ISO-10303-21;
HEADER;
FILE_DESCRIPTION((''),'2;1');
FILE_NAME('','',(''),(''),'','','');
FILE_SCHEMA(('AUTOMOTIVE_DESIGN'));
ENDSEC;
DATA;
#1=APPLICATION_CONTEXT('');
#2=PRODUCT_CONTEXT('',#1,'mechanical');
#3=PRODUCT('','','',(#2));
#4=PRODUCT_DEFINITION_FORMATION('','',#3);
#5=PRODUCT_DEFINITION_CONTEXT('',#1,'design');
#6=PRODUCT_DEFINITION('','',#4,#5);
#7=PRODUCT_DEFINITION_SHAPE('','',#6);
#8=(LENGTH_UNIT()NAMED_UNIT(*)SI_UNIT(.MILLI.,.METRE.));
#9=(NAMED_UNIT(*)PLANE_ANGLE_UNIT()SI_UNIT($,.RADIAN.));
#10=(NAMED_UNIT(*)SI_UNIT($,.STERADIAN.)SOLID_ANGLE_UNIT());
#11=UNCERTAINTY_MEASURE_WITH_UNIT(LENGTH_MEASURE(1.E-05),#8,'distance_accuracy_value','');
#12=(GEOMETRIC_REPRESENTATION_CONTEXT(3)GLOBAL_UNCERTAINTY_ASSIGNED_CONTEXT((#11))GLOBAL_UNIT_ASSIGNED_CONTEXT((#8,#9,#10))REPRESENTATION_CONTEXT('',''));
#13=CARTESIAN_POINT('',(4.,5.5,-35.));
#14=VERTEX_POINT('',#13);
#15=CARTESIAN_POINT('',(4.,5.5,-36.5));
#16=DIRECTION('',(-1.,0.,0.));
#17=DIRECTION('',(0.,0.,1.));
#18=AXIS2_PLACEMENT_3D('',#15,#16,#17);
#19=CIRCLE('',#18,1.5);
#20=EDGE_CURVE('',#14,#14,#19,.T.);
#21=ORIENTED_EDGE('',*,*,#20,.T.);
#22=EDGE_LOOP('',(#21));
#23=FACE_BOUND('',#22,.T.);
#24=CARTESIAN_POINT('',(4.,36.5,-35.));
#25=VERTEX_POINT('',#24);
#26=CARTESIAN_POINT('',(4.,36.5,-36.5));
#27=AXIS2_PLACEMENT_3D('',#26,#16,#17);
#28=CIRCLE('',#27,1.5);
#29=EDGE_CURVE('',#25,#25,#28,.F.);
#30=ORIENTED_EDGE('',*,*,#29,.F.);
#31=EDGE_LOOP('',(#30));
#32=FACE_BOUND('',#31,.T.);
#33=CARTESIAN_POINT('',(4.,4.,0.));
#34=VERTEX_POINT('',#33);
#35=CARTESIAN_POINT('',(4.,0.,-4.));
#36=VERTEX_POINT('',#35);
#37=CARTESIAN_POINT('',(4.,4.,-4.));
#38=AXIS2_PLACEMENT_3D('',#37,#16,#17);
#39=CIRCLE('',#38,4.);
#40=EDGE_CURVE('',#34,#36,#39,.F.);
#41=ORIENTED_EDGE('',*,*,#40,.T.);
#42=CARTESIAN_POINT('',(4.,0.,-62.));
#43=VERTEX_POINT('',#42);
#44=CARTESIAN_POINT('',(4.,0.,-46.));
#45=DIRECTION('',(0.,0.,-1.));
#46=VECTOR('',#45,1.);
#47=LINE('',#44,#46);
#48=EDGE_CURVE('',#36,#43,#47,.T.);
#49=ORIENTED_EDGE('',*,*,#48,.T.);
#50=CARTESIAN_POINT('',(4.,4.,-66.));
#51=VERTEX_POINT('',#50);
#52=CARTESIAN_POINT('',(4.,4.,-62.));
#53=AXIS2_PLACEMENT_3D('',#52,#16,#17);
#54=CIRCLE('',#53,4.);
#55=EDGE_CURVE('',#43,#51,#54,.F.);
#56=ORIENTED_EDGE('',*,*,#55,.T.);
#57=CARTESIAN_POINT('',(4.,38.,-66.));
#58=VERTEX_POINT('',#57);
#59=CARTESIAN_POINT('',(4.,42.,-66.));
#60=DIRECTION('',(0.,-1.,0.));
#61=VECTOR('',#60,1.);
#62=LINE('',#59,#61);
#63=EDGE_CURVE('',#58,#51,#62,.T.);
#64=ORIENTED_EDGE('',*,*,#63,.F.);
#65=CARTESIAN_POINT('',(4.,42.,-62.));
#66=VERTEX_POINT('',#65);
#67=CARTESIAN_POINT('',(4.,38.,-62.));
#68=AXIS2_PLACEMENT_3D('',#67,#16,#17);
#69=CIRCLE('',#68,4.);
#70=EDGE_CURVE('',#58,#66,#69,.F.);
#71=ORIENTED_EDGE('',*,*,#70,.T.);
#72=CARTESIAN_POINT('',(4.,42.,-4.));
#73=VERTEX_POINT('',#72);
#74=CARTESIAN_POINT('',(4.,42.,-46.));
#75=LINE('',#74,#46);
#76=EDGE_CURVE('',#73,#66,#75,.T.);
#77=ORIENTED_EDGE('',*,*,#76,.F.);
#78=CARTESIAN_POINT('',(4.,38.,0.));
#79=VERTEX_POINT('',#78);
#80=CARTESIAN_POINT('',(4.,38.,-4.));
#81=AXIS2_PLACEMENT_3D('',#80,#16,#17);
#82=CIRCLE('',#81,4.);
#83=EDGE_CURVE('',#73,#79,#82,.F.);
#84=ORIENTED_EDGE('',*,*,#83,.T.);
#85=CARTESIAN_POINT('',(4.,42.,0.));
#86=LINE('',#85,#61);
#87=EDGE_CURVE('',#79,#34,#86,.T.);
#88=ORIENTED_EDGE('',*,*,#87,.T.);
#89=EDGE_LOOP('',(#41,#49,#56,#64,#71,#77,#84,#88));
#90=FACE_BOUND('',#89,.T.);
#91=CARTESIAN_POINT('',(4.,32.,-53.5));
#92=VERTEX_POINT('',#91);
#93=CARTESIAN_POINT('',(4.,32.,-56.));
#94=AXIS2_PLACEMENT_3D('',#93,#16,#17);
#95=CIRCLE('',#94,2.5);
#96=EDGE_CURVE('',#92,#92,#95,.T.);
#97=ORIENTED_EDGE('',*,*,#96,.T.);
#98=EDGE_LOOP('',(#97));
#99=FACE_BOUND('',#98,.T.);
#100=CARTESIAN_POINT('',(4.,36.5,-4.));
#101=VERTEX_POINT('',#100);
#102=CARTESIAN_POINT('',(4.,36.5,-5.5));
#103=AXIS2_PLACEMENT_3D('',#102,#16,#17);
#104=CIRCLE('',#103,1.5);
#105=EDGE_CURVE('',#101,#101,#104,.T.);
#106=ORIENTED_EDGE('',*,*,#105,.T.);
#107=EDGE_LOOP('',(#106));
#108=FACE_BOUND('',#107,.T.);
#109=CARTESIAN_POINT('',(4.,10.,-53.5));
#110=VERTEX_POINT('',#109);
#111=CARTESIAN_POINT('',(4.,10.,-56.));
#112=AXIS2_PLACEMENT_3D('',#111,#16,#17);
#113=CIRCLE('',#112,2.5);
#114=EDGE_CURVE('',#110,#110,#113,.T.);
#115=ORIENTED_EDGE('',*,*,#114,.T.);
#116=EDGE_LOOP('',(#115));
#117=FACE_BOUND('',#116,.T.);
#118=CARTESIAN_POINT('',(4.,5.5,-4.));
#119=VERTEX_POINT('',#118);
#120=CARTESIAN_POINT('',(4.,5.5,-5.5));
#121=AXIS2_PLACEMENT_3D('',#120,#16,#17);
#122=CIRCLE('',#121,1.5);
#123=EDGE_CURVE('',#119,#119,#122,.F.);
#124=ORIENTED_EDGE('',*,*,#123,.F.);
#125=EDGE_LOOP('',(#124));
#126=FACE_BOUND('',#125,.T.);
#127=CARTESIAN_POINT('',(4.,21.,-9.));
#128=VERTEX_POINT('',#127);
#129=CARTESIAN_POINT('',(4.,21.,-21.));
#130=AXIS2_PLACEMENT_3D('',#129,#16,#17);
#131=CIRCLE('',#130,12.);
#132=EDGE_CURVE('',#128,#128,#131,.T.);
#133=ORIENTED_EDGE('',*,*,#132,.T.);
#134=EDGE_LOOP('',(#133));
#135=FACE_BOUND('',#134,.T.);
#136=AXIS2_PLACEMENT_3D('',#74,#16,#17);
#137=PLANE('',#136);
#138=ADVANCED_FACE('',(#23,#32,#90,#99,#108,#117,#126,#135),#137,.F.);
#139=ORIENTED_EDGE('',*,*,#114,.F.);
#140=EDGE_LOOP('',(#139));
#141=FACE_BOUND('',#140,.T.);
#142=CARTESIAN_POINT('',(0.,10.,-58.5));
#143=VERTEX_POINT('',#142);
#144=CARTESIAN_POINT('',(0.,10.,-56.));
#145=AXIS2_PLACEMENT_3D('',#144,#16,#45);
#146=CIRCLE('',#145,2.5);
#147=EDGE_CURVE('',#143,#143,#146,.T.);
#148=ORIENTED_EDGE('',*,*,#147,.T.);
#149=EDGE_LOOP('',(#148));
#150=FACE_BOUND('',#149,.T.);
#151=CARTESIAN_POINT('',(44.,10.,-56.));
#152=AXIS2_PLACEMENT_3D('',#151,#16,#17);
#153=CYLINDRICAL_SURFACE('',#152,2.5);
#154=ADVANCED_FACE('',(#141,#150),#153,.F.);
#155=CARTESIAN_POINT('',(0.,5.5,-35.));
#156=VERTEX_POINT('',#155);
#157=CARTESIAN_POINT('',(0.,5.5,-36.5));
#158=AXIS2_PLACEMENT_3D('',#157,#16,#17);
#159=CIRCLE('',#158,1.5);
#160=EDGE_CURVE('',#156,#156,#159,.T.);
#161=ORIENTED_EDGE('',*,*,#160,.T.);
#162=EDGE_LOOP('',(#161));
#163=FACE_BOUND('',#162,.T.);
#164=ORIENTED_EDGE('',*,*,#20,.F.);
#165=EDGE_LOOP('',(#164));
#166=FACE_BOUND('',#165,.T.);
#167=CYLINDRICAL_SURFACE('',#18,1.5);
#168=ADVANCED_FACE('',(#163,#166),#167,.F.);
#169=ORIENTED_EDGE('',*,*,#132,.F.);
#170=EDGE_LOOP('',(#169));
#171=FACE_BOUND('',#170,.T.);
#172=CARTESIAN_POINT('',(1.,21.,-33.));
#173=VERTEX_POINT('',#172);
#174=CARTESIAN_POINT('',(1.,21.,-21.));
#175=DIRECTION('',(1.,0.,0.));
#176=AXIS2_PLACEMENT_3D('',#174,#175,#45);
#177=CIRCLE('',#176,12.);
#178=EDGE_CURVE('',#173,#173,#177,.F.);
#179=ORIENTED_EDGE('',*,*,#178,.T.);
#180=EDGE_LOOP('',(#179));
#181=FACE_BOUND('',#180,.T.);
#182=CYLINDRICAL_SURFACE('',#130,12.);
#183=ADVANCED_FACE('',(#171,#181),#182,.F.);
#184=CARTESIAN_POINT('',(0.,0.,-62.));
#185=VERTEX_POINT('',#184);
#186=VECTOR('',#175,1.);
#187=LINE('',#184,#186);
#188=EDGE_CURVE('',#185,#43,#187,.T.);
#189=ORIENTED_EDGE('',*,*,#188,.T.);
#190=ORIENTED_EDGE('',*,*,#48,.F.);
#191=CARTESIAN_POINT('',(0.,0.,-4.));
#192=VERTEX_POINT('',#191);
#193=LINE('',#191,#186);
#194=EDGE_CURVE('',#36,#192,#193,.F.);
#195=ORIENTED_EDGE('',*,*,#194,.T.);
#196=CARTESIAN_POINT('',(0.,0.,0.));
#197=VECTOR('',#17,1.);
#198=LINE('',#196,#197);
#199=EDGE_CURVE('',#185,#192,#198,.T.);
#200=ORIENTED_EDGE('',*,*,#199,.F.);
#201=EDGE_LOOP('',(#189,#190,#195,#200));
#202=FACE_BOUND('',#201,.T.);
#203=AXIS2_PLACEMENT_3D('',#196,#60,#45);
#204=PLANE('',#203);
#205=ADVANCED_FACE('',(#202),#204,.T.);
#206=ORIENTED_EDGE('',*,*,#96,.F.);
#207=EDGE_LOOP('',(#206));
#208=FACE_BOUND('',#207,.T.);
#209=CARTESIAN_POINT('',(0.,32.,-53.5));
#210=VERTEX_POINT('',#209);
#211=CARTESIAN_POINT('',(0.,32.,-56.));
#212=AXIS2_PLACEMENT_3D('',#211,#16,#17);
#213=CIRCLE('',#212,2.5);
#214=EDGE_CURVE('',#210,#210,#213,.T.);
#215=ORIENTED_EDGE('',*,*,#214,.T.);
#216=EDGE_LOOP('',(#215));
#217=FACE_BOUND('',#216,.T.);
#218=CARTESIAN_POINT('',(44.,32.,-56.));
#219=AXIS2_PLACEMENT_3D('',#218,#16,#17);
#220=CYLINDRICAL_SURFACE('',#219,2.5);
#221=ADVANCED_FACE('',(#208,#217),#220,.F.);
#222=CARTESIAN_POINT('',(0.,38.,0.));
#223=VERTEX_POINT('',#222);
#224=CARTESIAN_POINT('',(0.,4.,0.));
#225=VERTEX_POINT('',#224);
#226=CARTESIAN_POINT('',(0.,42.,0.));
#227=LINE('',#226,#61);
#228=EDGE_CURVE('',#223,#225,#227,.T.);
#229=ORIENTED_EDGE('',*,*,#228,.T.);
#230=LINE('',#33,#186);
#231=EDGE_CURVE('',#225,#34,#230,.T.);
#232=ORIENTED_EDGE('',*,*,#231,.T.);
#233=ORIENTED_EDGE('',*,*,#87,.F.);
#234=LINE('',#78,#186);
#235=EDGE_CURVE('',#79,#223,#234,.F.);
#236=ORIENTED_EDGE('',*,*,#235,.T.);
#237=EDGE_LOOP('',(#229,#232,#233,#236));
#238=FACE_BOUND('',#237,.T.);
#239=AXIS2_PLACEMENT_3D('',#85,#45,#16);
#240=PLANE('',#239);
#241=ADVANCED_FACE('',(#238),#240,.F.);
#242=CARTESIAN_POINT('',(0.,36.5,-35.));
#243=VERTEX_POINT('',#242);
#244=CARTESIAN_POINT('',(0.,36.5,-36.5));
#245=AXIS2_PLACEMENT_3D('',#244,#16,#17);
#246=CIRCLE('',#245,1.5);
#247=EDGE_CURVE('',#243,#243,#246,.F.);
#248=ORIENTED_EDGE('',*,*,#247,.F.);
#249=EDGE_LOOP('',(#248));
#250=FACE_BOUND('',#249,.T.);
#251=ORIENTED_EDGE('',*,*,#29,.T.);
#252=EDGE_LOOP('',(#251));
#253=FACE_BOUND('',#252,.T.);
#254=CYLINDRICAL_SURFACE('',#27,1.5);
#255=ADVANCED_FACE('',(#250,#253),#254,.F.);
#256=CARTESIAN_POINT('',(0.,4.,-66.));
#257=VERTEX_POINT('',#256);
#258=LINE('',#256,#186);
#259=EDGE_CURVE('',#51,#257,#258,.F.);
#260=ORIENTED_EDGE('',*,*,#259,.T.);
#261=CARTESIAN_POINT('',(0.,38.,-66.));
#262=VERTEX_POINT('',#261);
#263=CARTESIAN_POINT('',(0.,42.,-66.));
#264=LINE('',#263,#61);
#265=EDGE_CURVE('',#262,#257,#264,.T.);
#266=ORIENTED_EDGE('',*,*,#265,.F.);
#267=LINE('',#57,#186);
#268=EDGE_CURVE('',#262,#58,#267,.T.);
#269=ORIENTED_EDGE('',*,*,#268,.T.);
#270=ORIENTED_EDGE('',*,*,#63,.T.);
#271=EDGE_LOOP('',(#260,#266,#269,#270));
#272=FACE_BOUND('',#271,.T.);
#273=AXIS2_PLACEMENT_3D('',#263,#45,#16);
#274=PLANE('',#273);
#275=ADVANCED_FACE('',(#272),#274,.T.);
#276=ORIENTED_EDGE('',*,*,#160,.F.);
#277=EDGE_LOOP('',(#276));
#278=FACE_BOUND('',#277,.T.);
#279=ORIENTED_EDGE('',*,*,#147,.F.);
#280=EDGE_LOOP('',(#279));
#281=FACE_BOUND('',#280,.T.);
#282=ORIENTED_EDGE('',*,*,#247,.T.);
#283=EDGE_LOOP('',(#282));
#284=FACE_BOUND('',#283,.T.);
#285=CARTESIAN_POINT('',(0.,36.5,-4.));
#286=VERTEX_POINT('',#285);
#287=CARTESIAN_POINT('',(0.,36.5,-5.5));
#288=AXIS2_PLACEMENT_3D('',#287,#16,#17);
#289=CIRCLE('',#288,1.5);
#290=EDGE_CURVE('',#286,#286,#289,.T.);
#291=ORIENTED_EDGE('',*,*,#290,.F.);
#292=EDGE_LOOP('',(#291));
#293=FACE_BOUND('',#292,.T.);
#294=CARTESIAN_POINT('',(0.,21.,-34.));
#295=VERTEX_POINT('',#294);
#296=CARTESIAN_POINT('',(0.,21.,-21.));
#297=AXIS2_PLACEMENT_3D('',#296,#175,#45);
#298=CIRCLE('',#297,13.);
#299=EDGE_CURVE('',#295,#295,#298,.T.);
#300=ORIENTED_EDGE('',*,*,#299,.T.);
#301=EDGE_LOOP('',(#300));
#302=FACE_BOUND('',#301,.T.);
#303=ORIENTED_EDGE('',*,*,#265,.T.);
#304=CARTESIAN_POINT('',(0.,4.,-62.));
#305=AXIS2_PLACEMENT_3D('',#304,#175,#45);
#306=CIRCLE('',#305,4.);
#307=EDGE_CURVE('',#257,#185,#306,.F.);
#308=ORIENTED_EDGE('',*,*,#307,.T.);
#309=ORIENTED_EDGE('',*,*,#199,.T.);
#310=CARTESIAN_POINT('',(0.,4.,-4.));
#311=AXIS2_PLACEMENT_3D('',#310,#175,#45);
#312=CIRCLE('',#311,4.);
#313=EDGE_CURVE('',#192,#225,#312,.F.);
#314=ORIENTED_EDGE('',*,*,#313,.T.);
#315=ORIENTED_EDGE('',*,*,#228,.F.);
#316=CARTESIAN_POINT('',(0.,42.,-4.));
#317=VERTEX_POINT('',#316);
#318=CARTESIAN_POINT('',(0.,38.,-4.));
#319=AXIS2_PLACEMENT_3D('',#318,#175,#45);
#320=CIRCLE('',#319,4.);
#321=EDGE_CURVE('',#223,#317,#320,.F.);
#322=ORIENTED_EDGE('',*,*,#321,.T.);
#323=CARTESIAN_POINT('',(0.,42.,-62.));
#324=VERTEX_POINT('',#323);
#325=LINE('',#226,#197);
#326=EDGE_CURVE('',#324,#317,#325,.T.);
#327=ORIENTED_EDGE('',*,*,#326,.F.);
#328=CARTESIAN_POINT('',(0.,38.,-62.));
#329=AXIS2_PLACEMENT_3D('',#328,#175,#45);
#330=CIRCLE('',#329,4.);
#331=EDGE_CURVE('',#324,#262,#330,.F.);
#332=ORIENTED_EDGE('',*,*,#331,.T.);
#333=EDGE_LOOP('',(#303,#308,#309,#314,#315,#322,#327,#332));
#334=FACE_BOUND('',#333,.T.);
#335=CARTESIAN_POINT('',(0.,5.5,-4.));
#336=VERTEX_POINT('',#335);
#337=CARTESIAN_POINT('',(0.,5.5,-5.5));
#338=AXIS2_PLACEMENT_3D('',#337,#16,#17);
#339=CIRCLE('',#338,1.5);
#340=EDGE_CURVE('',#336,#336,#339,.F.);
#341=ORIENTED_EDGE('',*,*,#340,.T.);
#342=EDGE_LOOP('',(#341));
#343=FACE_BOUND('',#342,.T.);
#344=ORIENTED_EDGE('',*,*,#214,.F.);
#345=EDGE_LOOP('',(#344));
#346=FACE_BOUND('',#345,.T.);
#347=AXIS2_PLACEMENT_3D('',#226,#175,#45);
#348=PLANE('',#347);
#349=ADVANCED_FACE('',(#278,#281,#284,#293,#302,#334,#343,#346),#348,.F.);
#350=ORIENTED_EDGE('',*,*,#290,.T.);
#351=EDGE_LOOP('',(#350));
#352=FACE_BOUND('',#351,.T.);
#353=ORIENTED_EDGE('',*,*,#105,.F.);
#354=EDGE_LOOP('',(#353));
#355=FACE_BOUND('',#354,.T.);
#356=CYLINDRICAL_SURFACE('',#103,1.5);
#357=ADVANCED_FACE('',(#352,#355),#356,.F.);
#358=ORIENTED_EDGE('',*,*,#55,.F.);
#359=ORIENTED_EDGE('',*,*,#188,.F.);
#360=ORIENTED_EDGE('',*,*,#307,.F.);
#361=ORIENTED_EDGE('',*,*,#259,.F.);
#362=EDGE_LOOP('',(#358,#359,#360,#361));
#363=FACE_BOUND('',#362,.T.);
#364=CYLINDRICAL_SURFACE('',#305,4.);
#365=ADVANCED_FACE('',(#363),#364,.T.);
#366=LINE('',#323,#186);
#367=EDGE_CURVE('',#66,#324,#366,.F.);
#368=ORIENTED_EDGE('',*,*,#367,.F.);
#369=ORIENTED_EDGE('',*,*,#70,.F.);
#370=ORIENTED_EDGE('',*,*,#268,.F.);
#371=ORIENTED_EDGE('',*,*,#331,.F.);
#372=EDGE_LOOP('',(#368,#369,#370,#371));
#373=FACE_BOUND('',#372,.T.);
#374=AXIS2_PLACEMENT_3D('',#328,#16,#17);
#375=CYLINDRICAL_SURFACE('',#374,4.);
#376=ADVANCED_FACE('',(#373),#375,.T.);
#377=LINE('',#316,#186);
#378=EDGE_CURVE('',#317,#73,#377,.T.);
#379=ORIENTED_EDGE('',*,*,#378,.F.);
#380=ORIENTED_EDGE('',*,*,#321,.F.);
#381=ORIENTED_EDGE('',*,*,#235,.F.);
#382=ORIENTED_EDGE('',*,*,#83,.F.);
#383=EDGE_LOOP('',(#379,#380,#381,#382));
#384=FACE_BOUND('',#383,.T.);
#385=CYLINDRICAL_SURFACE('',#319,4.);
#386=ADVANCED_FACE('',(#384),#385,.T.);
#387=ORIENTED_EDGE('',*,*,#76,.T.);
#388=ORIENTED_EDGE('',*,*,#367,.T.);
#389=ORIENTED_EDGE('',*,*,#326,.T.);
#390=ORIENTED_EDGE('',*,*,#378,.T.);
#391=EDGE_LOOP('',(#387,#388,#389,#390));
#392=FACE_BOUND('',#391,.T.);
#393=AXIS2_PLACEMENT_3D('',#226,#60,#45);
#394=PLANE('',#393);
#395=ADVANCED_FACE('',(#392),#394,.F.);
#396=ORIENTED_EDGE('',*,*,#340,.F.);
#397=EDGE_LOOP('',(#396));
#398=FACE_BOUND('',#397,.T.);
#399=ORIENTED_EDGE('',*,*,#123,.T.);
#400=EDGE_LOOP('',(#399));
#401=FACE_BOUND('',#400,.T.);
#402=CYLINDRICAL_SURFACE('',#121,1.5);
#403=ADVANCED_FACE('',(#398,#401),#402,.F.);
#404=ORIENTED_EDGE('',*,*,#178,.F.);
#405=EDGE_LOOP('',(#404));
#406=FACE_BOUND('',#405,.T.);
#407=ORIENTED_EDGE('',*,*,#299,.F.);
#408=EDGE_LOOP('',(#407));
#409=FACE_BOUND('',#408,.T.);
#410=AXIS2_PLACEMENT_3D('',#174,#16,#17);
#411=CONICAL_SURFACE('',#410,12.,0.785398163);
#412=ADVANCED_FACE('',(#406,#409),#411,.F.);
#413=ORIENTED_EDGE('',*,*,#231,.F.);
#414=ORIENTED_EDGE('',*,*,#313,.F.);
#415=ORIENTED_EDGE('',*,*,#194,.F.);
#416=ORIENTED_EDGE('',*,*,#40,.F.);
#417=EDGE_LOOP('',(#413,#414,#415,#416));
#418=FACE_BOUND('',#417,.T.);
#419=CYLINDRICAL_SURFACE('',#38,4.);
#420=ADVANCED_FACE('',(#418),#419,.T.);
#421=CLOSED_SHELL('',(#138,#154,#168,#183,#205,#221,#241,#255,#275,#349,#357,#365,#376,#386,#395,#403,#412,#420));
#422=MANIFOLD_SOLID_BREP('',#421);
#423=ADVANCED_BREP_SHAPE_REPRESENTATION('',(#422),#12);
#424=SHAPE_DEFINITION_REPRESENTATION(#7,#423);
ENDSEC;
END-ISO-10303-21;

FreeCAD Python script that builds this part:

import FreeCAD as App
import Part
import Sketcher
Q = App.Units.Quantity


def edges_at(feature, points):
    """Names of the edges that pass closest to the given points."""
    edges = feature.Shape.Edges
    near = lambda p: min(range(len(edges)), key=lambda i: edges[i].distToShape(Part.Vertex(*p))[0])
    return sorted({f"Edge{near(p) + 1}" for p in points})


def add_polygon(sketch, points):
    """Adds a closed chain of lines whose ends are joined by coincident constraints."""
    first, n = sketch.GeometryCount, len(points)
    for a, b in zip(points, points[1:] + points[:1]):
        sketch.addGeometry(Part.LineSegment(App.Vector(*a, 0), App.Vector(*b, 0)), False)
    for i in range(n):
        sketch.addConstraint(Sketcher.Constraint("Coincident", first + i, 2, first + (i + 1) % n, 1))

doc = App.newDocument("Part")
body = doc.addObject("PartDesign::Body", "Body")

sketch1 = body.newObject("Sketcher::SketchObject", "Sketch")
sketch1.AttachmentSupport = (doc.getObject("XZ_Plane"), [""])
sketch1.MapMode = "FlatFace"
add_polygon(sketch1, [(0, -42), (0, 0), (4, 0), (4, -46), (-20, -46), (-20, -42)])
sketch1.addConstraint([
    Sketcher.Constraint("Vertical", 0),
    Sketcher.Constraint("Horizontal", 1),
    Sketcher.Constraint("Vertical", 2),
    Sketcher.Constraint("Horizontal", 3),
    Sketcher.Constraint("Vertical", 4),
    Sketcher.Constraint("Horizontal", 5),
    Sketcher.Constraint("Coincident", 0, 2, -1, 1),
    Sketcher.Constraint("Equal", 1, 4),
    Sketcher.Constraint("DistanceX", 1, 1, 1, 2, Q("4 mm")),
    Sketcher.Constraint("DistanceX", 3, 2, 3, 1, Q("24 mm")),
    Sketcher.Constraint("DistanceY", 0, 1, 0, 2, Q("42 mm")),
])
pad1 = body.newObject("PartDesign::Pad", "Pad")
pad1.Profile = sketch1
pad1.Length = 42
pad1.Reversed = True

sketch2 = body.newObject("Sketcher::SketchObject", "Sketch001")
sketch2.AttachmentSupport = (doc.getObject("YZ_Plane"), [""])
sketch2.MapMode = "FlatFace"
sketch2.addGeometry([
    Part.Circle(App.Vector(21, -21, 0), App.Vector(0, 0, 1), 12),
    Part.Circle(App.Vector(36.5, -36.5, 0), App.Vector(0, 0, 1), 1.5),
    Part.Circle(App.Vector(36.5, -5.5, 0), App.Vector(0, 0, 1), 1.5),
    Part.Circle(App.Vector(5.5, -5.5, 0), App.Vector(0, 0, 1), 1.5),
    Part.Circle(App.Vector(5.5, -36.5, 0), App.Vector(0, 0, 1), 1.5),
], False)
sketch2.addConstraint([
    Sketcher.Constraint("Equal", 1, 2),
    Sketcher.Constraint("Equal", 2, 3),
    Sketcher.Constraint("Equal", 3, 4),
    Sketcher.Constraint("Horizontal", 2, 3, 3, 3),
    Sketcher.Constraint("Horizontal", 1, 3, 4, 3),
    Sketcher.Constraint("Vertical", 1, 3, 2, 3),
    Sketcher.Constraint("Vertical", 3, 3, 4, 3),
    Sketcher.Constraint("Diameter", 0, Q("24 mm")),
    Sketcher.Constraint("Diameter", 1, Q("3 mm")),
    Sketcher.Constraint("DistanceX", -1, 1, 0, 3, Q("21 mm")),
    Sketcher.Constraint("DistanceY", 0, 3, -1, 1, Q("21 mm")),
    Sketcher.Constraint("DistanceY", 1, 3, 2, 3, Q("31 mm")),
    Sketcher.Constraint("DistanceX", 3, 3, 2, 3, Q("31 mm")),
    Sketcher.Constraint("DistanceX", -1, 1, 1, 3, Q("36.5 mm")),
    Sketcher.Constraint("DistanceY", 1, 3, -1, 1, Q("36.5 mm")),
])
pocket1 = body.newObject("PartDesign::Pocket", "Pocket")
pocket1.Profile = sketch2
pocket1.Type = "ThroughAll"
pocket1.Reversed = True

sketch3 = body.newObject("Sketcher::SketchObject", "Sketch002")
sketch3.AttachmentSupport = (doc.getObject("XY_Plane"), [""])
sketch3.MapMode = "FlatFace"
sketch3.AttachmentOffset = App.Placement(App.Vector(0, 0, -42), App.Rotation())
sketch3.addGeometry([
    Part.Circle(App.Vector(-10, 32, 0), App.Vector(0, 0, 1), 2),
    Part.Circle(App.Vector(-10, 10, 0), App.Vector(0, 0, 1), 2),
], False)
sketch3.addConstraint([
    Sketcher.Constraint("Equal", 0, 1),
    Sketcher.Constraint("Vertical", 0, 3, 1, 3),
    Sketcher.Constraint("Diameter", 0, Q("4 mm")),
    Sketcher.Constraint("DistanceX", 0, 3, -1, 1, Q("10 mm")),
    Sketcher.Constraint("DistanceY", -1, 1, 0, 3, Q("32 mm")),
    Sketcher.Constraint("DistanceY", -1, 1, 1, 3, Q("10 mm")),
])
pocket2 = body.newObject("PartDesign::Pocket", "Pocket001")
pocket2.Profile = sketch3
pocket2.Type = "ThroughAll"
doc.recompute()

chamfer = body.newObject("PartDesign::Chamfer", "Chamfer")
chamfer.Base = (pocket2, edges_at(pocket2, [(-12, 32, -42), (-12, 10, -42)]))
chamfer.Size = 2
doc.recompute()

chamfer2 = body.newObject("PartDesign::Chamfer", "Chamfer001")
chamfer2.Base = (chamfer, edges_at(chamfer, [(0, 21, -33)]))
chamfer2.Size = 1
doc.recompute()

fillet = body.newObject("PartDesign::Fillet", "Fillet")
fillet.Base = (chamfer2, edges_at(chamfer2, [
    (4, 21, -46),
    (-20, 42, -44),
    (2, 42, 0),
    (-20, 0, -44),
    (2, 0, 0),
]))
fillet.Radius = 4

sketch4 = body.newObject("Sketcher::SketchObject", "Sketch003")
sketch4.AttachmentSupport = (doc.getObject("XZ_Plane"), [""])
sketch4.MapMode = "FlatFace"
add_polygon(sketch4, [(0, -66), (4, -66), (4, -42), (0, -42)])
sketch4.addConstraint([
    Sketcher.Constraint("Horizontal", 0),
    Sketcher.Constraint("Vertical", 1),
    Sketcher.Constraint("Horizontal", 2),
    Sketcher.Constraint("Vertical", 3),
    Sketcher.Constraint("PointOnObject", 2, 2, -2),
    Sketcher.Constraint("DistanceX", 0, 1, 0, 2, Q("4 mm")),
    Sketcher.Constraint("DistanceY", 1, 1, 1, 2, Q("24 mm")),
    Sketcher.Constraint("DistanceY", 0, 2, -1, 1, Q("66 mm")),
])
pad2 = body.newObject("PartDesign::Pad", "Pad001")
pad2.Profile = sketch4
pad2.Length = 42
pad2.Reversed = True

sketch5 = body.newObject("Sketcher::SketchObject", "Sketch004")
sketch5.AttachmentSupport = (doc.getObject("XZ_Plane"), [""])
sketch5.MapMode = "FlatFace"
sketch5.AttachmentOffset = App.Placement(App.Vector(0, 0, -42), App.Rotation())
add_polygon(sketch5, [(-27.2, -46), (-27.2, -42), (0, -42), (0, -46)])
sketch5.addConstraint([
    Sketcher.Constraint("Vertical", 0),
    Sketcher.Constraint("Horizontal", 1),
    Sketcher.Constraint("Vertical", 2),
    Sketcher.Constraint("Horizontal", 3),
    Sketcher.Constraint("PointOnObject", 1, 2, -2),
    Sketcher.Constraint("DistanceY", 0, 1, 0, 2, Q("4 mm")),
    Sketcher.Constraint("DistanceY", 0, 2, -1, 1, Q("42 mm")),
    Sketcher.Constraint("DistanceX", 1, 1, 1, 2, Q("27.168576 mm")),
])
pocket3 = body.newObject("PartDesign::Pocket", "Pocket002")
pocket3.Profile = sketch5
pocket3.Length = 44
pocket3.Reversed = True

sketch6 = body.newObject("Sketcher::SketchObject", "Sketch005")
sketch6.AttachmentSupport = (doc.getObject("YZ_Plane"), [""])
sketch6.MapMode = "FlatFace"
sketch6.addGeometry([
    Part.Circle(App.Vector(32, -56, 0), App.Vector(0, 0, 1), 2.5),
    Part.Circle(App.Vector(10, -56, 0), App.Vector(0, 0, 1), 2.5),
], False)
sketch6.addConstraint([
    Sketcher.Constraint("Equal", 0, 1),
    Sketcher.Constraint("Horizontal", 0, 3, 1, 3),
    Sketcher.Constraint("Diameter", 0, Q("5 mm")),
    Sketcher.Constraint("DistanceX", -1, 1, 0, 3, Q("32 mm")),
    Sketcher.Constraint("DistanceY", 0, 3, -1, 1, Q("56 mm")),
    Sketcher.Constraint("DistanceX", -1, 1, 1, 3, Q("10 mm")),
])
pocket4 = body.newObject("PartDesign::Pocket", "Pocket003")
pocket4.Profile = sketch6
pocket4.Length = 44
pocket4.Reversed = True
doc.recompute()

fillet2 = body.newObject("PartDesign::Fillet", "Fillet001")
fillet2.Base = (pocket4, edges_at(pocket4, [(2, 42, -66), (2, 0, -66)]))
fillet2.Radius = 4

doc.recompute()
